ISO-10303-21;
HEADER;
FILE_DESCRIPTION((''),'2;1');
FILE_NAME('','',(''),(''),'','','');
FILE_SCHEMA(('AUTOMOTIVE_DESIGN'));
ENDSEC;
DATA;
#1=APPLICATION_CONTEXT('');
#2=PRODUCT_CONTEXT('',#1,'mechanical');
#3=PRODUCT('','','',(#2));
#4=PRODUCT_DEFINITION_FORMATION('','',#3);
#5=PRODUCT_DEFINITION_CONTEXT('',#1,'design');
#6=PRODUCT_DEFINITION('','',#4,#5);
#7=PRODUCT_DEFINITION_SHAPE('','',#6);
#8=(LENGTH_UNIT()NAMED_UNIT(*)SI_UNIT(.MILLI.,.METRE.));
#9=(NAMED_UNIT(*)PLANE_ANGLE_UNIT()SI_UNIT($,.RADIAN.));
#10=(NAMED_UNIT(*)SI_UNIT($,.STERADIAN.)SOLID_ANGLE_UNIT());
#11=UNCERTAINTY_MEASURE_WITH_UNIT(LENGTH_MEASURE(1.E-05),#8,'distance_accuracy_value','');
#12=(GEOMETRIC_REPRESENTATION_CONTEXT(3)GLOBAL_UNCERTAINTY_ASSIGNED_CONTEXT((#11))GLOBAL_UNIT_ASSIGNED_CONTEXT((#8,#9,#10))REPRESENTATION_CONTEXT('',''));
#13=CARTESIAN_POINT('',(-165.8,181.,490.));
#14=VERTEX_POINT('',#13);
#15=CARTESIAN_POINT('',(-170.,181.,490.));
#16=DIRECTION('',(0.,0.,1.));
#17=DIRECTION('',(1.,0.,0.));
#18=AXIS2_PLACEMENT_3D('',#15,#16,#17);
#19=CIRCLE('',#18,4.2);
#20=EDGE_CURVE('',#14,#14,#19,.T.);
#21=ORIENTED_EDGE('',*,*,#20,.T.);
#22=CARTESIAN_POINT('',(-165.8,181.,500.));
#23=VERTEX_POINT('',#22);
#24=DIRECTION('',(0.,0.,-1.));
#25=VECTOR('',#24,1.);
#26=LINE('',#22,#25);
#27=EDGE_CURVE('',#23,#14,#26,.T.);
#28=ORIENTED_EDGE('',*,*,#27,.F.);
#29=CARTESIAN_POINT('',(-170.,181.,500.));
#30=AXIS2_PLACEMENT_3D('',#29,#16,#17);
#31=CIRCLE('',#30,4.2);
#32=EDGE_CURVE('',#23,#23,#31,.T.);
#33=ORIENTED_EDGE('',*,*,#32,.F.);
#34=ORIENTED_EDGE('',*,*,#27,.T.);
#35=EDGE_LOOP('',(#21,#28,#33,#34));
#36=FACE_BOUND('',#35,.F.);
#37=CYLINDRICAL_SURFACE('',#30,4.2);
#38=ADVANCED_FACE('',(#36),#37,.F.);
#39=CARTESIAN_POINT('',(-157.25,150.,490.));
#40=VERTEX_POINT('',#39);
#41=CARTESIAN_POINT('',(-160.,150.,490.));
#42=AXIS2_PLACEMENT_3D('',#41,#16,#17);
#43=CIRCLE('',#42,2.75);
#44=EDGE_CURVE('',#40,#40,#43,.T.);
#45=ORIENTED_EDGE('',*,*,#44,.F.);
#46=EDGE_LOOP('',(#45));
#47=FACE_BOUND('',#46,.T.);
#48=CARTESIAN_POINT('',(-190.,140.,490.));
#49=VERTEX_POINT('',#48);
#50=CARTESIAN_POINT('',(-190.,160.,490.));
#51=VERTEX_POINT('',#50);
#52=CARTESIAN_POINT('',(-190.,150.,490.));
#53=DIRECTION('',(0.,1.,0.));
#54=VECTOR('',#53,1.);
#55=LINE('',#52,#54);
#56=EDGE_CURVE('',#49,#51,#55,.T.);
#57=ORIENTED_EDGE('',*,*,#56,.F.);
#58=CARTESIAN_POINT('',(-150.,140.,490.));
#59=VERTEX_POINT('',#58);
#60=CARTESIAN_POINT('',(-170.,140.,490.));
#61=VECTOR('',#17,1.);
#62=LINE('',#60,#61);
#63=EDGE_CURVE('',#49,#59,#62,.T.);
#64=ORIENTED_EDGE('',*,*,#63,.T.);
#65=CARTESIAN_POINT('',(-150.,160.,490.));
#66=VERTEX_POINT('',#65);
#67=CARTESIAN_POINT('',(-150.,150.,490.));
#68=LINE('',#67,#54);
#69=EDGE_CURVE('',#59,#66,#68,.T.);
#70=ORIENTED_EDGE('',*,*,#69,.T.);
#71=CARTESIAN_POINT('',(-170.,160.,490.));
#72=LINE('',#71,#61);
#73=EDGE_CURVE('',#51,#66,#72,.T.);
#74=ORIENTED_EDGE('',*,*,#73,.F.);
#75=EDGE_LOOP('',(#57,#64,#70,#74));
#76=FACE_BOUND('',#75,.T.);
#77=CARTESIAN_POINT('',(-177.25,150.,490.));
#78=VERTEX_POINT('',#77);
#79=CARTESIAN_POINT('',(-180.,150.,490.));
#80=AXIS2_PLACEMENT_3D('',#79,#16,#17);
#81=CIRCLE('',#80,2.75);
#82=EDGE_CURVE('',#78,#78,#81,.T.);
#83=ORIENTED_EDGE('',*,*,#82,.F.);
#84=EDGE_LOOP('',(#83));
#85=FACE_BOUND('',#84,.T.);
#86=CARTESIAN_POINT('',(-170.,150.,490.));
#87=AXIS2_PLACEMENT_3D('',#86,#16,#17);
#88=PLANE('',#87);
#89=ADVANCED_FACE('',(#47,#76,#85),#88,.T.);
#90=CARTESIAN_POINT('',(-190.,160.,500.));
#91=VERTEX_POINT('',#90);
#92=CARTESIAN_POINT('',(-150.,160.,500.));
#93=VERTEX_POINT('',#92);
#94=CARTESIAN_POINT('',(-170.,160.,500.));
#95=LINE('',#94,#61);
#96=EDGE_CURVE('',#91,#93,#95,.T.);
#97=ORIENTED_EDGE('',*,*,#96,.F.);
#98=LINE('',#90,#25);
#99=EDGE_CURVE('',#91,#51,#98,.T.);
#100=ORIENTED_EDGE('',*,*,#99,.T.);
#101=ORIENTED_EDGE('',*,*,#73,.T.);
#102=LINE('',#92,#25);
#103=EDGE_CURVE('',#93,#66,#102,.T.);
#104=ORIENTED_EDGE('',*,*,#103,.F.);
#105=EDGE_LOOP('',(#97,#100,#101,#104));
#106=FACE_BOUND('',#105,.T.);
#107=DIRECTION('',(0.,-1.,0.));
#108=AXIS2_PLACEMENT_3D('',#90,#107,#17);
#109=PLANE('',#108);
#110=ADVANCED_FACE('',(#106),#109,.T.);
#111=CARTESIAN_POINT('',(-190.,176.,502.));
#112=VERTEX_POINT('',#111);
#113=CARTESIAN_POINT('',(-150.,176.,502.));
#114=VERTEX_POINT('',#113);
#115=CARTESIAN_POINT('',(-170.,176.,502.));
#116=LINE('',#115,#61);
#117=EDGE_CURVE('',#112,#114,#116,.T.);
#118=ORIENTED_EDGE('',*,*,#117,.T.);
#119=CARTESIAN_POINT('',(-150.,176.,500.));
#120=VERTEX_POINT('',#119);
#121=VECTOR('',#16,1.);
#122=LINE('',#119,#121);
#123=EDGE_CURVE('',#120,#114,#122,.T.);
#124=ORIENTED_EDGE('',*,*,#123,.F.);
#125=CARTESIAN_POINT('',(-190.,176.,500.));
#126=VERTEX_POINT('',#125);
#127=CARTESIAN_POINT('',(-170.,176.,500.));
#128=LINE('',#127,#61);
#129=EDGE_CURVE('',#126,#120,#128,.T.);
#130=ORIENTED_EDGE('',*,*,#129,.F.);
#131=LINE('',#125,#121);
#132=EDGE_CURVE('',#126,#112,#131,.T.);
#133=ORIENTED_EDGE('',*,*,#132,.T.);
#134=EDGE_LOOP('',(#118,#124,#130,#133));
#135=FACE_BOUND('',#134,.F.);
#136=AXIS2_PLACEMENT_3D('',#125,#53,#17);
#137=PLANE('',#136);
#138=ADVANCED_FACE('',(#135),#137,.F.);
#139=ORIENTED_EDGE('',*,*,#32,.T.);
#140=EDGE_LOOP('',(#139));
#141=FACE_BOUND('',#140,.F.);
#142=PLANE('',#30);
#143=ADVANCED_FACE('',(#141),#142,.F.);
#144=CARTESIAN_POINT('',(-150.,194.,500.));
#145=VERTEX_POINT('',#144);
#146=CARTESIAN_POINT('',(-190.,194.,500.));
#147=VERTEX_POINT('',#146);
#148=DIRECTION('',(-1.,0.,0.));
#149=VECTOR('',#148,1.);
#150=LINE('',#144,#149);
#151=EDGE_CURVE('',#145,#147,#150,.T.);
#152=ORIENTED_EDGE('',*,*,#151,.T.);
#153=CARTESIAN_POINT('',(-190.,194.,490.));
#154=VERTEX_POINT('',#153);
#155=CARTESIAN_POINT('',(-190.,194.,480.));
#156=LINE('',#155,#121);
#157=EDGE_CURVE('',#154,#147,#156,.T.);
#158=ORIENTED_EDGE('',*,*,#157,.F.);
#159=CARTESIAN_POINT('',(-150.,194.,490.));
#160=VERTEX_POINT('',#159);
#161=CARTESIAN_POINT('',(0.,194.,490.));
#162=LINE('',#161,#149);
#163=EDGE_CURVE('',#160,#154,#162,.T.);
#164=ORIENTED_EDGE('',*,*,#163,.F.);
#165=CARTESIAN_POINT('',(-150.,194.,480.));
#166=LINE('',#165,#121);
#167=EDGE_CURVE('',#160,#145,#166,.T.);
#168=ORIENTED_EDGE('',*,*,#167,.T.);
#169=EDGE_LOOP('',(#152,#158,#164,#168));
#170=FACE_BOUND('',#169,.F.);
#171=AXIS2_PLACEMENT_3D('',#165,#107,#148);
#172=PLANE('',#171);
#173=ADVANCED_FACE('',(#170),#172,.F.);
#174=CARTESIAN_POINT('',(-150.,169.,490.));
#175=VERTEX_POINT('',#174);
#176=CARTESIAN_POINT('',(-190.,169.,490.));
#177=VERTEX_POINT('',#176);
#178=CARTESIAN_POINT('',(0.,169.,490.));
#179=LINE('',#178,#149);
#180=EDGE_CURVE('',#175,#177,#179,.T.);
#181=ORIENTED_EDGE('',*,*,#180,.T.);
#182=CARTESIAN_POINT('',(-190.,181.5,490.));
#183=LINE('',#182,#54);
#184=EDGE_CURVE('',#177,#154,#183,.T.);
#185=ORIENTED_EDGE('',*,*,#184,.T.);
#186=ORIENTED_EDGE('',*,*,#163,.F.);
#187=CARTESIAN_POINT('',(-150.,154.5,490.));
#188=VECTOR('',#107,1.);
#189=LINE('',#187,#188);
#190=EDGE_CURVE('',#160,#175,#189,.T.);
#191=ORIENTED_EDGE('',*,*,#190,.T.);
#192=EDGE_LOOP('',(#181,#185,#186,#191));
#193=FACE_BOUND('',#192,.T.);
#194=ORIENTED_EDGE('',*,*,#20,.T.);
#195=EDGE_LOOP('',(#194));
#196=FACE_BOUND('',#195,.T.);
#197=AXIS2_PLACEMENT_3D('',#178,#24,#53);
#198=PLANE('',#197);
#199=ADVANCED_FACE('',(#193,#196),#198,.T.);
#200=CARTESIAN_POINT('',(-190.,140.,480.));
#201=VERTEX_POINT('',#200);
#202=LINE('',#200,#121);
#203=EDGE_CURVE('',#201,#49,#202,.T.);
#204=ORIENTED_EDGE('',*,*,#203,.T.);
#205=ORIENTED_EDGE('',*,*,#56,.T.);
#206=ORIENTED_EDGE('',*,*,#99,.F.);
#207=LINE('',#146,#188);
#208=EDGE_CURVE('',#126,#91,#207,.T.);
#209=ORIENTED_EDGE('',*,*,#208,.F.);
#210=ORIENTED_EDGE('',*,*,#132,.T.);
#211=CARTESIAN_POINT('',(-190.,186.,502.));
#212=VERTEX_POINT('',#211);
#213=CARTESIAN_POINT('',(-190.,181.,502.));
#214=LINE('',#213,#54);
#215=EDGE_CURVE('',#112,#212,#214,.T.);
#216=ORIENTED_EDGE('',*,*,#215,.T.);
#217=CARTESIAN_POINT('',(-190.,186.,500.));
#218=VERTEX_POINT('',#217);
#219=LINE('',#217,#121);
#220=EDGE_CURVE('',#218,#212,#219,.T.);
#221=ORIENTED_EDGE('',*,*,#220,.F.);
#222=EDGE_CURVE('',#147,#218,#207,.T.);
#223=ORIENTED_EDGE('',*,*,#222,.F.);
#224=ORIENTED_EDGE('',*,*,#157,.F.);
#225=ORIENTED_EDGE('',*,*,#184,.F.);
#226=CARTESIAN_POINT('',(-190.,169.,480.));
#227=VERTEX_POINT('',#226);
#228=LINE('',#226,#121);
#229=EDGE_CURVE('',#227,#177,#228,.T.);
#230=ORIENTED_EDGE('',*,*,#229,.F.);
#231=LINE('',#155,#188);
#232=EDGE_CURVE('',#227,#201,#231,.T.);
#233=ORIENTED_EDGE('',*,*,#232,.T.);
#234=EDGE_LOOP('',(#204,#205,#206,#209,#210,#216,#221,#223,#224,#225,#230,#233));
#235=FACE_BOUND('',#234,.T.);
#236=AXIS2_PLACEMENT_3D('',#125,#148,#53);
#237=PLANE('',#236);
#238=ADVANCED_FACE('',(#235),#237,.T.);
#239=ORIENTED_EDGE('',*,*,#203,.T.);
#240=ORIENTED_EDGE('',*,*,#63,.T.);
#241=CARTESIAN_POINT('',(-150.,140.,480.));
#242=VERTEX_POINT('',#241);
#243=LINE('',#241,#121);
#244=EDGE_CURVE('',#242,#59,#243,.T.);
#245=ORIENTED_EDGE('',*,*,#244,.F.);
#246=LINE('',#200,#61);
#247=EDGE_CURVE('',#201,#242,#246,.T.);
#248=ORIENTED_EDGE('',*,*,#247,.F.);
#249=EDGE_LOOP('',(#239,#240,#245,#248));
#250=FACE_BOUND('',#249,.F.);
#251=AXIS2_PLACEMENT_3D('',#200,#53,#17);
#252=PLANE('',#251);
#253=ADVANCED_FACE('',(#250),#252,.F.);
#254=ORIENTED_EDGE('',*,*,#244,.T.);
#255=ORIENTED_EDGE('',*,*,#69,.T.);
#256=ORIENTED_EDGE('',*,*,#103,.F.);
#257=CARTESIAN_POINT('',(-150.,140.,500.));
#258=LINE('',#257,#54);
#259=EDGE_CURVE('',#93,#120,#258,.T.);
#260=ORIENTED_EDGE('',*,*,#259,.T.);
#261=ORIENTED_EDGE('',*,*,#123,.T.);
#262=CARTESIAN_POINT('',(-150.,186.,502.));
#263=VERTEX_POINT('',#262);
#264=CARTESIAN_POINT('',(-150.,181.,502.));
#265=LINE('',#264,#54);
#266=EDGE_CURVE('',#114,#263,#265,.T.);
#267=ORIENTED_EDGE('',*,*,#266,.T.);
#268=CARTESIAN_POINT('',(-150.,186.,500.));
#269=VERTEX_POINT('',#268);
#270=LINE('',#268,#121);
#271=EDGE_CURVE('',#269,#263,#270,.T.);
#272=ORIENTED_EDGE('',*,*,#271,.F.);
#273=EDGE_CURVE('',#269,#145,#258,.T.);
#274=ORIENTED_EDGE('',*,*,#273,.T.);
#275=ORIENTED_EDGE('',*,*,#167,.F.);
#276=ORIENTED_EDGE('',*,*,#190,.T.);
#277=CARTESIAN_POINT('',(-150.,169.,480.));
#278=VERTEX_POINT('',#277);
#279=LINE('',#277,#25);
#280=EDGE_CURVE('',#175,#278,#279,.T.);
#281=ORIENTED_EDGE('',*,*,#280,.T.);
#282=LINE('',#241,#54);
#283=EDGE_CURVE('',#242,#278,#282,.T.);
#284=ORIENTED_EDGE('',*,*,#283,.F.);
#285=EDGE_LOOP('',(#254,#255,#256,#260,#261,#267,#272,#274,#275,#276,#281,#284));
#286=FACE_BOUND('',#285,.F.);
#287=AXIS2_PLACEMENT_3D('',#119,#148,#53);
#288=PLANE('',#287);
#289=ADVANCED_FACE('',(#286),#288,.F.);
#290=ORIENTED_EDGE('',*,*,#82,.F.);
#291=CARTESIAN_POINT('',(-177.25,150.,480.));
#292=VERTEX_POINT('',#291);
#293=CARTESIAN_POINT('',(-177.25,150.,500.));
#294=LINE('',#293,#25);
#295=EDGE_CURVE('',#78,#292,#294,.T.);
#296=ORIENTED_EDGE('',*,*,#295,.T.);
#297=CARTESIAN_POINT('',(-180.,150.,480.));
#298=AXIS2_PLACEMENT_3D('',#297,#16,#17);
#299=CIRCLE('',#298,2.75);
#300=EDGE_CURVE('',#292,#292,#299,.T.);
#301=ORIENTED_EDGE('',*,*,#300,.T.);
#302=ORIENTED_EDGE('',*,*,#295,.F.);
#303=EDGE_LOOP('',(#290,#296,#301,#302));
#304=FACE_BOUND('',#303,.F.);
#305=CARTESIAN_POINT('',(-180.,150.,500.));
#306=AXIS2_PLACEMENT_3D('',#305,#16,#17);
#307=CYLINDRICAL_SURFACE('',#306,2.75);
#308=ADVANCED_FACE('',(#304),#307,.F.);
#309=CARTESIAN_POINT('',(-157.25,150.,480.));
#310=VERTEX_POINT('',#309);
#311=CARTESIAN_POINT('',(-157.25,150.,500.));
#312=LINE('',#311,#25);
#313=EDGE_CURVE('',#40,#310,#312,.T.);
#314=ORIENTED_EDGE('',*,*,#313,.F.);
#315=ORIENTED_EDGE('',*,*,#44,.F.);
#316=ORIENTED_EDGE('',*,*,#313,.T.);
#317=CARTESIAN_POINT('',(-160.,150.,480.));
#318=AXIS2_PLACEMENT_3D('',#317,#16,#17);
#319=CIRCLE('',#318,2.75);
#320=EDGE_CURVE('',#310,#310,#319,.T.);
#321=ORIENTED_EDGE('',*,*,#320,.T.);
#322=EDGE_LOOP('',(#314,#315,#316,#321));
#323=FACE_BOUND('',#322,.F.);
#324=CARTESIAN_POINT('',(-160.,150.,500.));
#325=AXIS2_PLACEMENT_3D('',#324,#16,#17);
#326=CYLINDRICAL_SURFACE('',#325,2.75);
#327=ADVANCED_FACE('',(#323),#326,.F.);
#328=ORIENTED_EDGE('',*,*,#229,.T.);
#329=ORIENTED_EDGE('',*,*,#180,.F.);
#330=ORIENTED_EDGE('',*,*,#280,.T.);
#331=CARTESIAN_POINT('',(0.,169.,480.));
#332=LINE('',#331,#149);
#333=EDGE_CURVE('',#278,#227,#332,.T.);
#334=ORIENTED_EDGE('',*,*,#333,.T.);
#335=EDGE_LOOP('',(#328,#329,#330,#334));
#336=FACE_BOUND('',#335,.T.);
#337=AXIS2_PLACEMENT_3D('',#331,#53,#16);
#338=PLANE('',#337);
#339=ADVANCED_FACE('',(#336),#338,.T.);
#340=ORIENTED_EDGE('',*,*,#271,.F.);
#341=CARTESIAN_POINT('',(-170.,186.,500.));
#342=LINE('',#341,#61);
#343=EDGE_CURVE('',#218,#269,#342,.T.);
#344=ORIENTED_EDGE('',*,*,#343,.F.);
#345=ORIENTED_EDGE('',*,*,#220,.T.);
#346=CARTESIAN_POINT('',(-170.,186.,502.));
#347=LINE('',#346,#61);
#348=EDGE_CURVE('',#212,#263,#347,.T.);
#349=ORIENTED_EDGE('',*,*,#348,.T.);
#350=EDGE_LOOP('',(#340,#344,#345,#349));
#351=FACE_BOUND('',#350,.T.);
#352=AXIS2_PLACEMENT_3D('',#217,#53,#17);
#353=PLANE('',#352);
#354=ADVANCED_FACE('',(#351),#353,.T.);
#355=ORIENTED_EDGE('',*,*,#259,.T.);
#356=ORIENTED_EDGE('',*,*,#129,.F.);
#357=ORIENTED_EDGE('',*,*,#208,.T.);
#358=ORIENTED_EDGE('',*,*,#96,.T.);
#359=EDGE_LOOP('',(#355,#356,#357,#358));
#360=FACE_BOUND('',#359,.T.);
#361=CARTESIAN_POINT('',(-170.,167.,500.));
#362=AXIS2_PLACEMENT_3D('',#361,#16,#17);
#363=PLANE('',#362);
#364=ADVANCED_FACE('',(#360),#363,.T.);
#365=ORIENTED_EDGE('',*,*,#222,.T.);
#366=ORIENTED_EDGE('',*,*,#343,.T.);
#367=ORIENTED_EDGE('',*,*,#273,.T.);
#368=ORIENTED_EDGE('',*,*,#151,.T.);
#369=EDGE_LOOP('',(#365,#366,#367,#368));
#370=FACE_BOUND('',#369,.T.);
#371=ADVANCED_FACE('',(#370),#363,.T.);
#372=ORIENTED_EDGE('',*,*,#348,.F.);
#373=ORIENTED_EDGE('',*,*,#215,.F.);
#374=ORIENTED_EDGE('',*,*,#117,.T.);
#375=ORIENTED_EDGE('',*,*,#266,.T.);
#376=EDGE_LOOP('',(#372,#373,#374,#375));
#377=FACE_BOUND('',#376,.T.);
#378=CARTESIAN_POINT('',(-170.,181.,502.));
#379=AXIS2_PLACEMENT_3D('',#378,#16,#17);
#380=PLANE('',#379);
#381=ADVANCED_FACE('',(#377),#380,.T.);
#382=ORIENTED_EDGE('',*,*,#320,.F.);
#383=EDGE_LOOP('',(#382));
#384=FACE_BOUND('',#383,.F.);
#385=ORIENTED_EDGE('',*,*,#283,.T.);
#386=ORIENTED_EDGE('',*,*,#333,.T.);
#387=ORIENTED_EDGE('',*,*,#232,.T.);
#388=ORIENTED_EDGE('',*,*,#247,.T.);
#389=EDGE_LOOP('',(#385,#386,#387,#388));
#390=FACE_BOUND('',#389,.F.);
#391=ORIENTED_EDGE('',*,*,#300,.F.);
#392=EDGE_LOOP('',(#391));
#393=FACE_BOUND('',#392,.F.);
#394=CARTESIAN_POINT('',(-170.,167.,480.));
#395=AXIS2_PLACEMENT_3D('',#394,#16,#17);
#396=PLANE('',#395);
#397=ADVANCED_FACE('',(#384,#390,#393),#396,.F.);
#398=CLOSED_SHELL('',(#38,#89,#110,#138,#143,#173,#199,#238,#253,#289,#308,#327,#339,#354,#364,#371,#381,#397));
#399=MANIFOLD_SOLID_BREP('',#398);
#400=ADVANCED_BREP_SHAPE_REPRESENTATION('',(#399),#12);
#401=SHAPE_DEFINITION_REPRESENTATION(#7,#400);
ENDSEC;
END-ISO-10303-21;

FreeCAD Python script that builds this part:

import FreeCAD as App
import Part
import Sketcher

V = App.Vector


def add_polygon(sketch, points):
    """Adds a closed chain of lines whose ends are joined by coincident constraints."""
    first, n = sketch.GeometryCount, len(points)
    for a, b in zip(points, points[1:] + points[:1]):
        sketch.addGeometry(Part.LineSegment(App.Vector(*a, 0), App.Vector(*b, 0)), False)
    for i in range(n):
        sketch.addConstraint(Sketcher.Constraint("Coincident", first + i, 2, first + (i + 1) % n, 1))

doc = App.newDocument("Part")
body = doc.addObject("PartDesign::Body", "Body")

# Sketch on XY plane
sketch1 = body.newObject("Sketcher::SketchObject", "Sketch")
sketch1.AttachmentSupport = (doc.getObject("XY_Plane"), [""])
sketch1.MapMode = "FlatFace"
sketch1.AttachmentOffset = App.Placement(V(0, 0, 480), App.Rotation())
add_polygon(sketch1, [(-190, 140), (-150, 140), (-150, 194), (-190, 194)])  # lines 0-3
sketch1.addConstraint([
    Sketcher.Constraint("Horizontal", 0),
    Sketcher.Constraint("Vertical", 1),
    Sketcher.Constraint("Horizontal", 2),
    Sketcher.Constraint("Vertical", 3),
    Sketcher.Constraint("DistanceX", 0, 1, 0, 2, 40.0),
    Sketcher.Constraint("DistanceY", 1, 1, 1, 2, 54.0),
    Sketcher.Constraint("DistanceX", 0, 2, -1, 1, 150.0),
    Sketcher.Constraint("DistanceY", -1, 1, 0, 2, 140.0),
])
pad1 = body.newObject("PartDesign::Pad", "Pad")
pad1.Profile = sketch1
pad1.Length = 20

# Sketch on XY plane
sketch2 = body.newObject("Sketcher::SketchObject", "Sketch001")
sketch2.AttachmentSupport = (doc.getObject("XY_Plane"), [""])
sketch2.MapMode = "FlatFace"
sketch2.AttachmentOffset = App.Placement(V(0, 0, 500), App.Rotation())
sketch2.addGeometry(Part.Circle(V(-170, 181, 0), V(0, 0, 1), 4.2), False)
sketch2.addConstraint([
    Sketcher.Constraint("Diameter", 0, 8.4),
    Sketcher.Constraint("DistanceX", 0, 3, -1, 1, 170.0),
    Sketcher.Constraint("DistanceY", -1, 1, 0, 3, 181.0),
])
pocket1 = body.newObject("PartDesign::Pocket", "Pocket")
pocket1.Profile = sketch2
pocket1.Length = 25

# Sketch on XY plane
sketch3 = body.newObject("Sketcher::SketchObject", "Sketch002")
sketch3.AttachmentSupport = (doc.getObject("XY_Plane"), [""])
sketch3.MapMode = "FlatFace"
sketch3.AttachmentOffset = App.Placement(V(0, 0, 500), App.Rotation())
sketch3.addGeometry([
    Part.Circle(V(-180, 150, 0), V(0, 0, 1), 2.75),
    Part.Circle(V(-160, 150, 0), V(0, 0, 1), 2.75),
], False)
sketch3.addConstraint([
    Sketcher.Constraint("Equal", 0, 1),
    Sketcher.Constraint("Horizontal", 0, 3, 1, 3),
    Sketcher.Constraint("Diameter", 0, 5.5),
    Sketcher.Constraint("DistanceX", 0, 3, -1, 1, 180.0),
    Sketcher.Constraint("DistanceY", -1, 1, 0, 3, 150.0),
    Sketcher.Constraint("DistanceX", 1, 3, -1, 1, 160.0),
])
pocket2 = body.newObject("PartDesign::Pocket", "Pocket001")
pocket2.Profile = sketch3
pocket2.Length = 25

# Sketch on XY plane
sketch4 = body.newObject("Sketcher::SketchObject", "Sketch003")
sketch4.AttachmentSupport = (doc.getObject("XY_Plane"), [""])
sketch4.MapMode = "FlatFace"
sketch4.AttachmentOffset = App.Placement(V(0, 0, 500), App.Rotation())
add_polygon(sketch4, [(-190, 160), (-190, 140), (-150, 140), (-150, 160)])  # lines 0-3
sketch4.addConstraint([
    Sketcher.Constraint("Vertical", 0),
    Sketcher.Constraint("Horizontal", 1),
    Sketcher.Constraint("Vertical", 2),
    Sketcher.Constraint("Horizontal", 3),
    Sketcher.Constraint("DistanceX", 1, 1, 1, 2, 40.0),
    Sketcher.Constraint("DistanceY", 0, 2, 0, 1, 20.0),
    Sketcher.Constraint("DistanceX", 0, 2, -1, 1, 190.0),
    Sketcher.Constraint("DistanceY", -1, 1, 0, 2, 140.0),
])
pocket3 = body.newObject("PartDesign::Pocket", "Pocket002")
pocket3.Profile = sketch4
pocket3.Length = 10

# Sketch on YZ plane
sketch5 = body.newObject("Sketcher::SketchObject", "Sketch004")
sketch5.AttachmentSupport = (doc.getObject("YZ_Plane"), [""])
sketch5.MapMode = "FlatFace"
add_polygon(sketch5, [(169, 490), (169, 480), (194, 480), (194, 490)])  # lines 0-3
sketch5.addConstraint([
    Sketcher.Constraint("Vertical", 0),
    Sketcher.Constraint("Horizontal", 1),
    Sketcher.Constraint("Vertical", 2),
    Sketcher.Constraint("Horizontal", 3),
    Sketcher.Constraint("DistanceX", 1, 1, 1, 2, 25.0),
    Sketcher.Constraint("DistanceY", 0, 2, 0, 1, 10.0),
    Sketcher.Constraint("DistanceX", -1, 1, 0, 2, 169.0),
    Sketcher.Constraint("DistanceY", -1, 1, 0, 2, 480.0),
])
pocket4 = body.newObject("PartDesign::Pocket", "Pocket003")
pocket4.Profile = sketch5
pocket4.Type = "ThroughAll"

# Sketch on XY plane
sketch6 = body.newObject("Sketcher::SketchObject", "Sketch005")
sketch6.AttachmentSupport = (doc.getObject("XY_Plane"), [""])
sketch6.MapMode = "FlatFace"
sketch6.AttachmentOffset = App.Placement(V(0, 0, 500), App.Rotation())
add_polygon(sketch6, [(-190, 186), (-190, 176), (-150, 176), (-150, 186)])  # lines 0-3
sketch6.addConstraint([
    Sketcher.Constraint("Vertical", 0),
    Sketcher.Constraint("Horizontal", 1),
    Sketcher.Constraint("Vertical", 2),
    Sketcher.Constraint("Horizontal", 3),
    Sketcher.Constraint("DistanceX", 1, 1, 1, 2, 40.0),
    Sketcher.Constraint("DistanceY", 0, 2, 0, 1, 10.0),
    Sketcher.Constraint("DistanceX", 0, 2, -1, 1, 190.0),
    Sketcher.Constraint("DistanceY", -1, 1, 0, 2, 176.0),
])
pad2 = body.newObject("PartDesign::Pad", "Pad001")
pad2.Profile = sketch6
pad2.Length = 2

doc.recompute()
